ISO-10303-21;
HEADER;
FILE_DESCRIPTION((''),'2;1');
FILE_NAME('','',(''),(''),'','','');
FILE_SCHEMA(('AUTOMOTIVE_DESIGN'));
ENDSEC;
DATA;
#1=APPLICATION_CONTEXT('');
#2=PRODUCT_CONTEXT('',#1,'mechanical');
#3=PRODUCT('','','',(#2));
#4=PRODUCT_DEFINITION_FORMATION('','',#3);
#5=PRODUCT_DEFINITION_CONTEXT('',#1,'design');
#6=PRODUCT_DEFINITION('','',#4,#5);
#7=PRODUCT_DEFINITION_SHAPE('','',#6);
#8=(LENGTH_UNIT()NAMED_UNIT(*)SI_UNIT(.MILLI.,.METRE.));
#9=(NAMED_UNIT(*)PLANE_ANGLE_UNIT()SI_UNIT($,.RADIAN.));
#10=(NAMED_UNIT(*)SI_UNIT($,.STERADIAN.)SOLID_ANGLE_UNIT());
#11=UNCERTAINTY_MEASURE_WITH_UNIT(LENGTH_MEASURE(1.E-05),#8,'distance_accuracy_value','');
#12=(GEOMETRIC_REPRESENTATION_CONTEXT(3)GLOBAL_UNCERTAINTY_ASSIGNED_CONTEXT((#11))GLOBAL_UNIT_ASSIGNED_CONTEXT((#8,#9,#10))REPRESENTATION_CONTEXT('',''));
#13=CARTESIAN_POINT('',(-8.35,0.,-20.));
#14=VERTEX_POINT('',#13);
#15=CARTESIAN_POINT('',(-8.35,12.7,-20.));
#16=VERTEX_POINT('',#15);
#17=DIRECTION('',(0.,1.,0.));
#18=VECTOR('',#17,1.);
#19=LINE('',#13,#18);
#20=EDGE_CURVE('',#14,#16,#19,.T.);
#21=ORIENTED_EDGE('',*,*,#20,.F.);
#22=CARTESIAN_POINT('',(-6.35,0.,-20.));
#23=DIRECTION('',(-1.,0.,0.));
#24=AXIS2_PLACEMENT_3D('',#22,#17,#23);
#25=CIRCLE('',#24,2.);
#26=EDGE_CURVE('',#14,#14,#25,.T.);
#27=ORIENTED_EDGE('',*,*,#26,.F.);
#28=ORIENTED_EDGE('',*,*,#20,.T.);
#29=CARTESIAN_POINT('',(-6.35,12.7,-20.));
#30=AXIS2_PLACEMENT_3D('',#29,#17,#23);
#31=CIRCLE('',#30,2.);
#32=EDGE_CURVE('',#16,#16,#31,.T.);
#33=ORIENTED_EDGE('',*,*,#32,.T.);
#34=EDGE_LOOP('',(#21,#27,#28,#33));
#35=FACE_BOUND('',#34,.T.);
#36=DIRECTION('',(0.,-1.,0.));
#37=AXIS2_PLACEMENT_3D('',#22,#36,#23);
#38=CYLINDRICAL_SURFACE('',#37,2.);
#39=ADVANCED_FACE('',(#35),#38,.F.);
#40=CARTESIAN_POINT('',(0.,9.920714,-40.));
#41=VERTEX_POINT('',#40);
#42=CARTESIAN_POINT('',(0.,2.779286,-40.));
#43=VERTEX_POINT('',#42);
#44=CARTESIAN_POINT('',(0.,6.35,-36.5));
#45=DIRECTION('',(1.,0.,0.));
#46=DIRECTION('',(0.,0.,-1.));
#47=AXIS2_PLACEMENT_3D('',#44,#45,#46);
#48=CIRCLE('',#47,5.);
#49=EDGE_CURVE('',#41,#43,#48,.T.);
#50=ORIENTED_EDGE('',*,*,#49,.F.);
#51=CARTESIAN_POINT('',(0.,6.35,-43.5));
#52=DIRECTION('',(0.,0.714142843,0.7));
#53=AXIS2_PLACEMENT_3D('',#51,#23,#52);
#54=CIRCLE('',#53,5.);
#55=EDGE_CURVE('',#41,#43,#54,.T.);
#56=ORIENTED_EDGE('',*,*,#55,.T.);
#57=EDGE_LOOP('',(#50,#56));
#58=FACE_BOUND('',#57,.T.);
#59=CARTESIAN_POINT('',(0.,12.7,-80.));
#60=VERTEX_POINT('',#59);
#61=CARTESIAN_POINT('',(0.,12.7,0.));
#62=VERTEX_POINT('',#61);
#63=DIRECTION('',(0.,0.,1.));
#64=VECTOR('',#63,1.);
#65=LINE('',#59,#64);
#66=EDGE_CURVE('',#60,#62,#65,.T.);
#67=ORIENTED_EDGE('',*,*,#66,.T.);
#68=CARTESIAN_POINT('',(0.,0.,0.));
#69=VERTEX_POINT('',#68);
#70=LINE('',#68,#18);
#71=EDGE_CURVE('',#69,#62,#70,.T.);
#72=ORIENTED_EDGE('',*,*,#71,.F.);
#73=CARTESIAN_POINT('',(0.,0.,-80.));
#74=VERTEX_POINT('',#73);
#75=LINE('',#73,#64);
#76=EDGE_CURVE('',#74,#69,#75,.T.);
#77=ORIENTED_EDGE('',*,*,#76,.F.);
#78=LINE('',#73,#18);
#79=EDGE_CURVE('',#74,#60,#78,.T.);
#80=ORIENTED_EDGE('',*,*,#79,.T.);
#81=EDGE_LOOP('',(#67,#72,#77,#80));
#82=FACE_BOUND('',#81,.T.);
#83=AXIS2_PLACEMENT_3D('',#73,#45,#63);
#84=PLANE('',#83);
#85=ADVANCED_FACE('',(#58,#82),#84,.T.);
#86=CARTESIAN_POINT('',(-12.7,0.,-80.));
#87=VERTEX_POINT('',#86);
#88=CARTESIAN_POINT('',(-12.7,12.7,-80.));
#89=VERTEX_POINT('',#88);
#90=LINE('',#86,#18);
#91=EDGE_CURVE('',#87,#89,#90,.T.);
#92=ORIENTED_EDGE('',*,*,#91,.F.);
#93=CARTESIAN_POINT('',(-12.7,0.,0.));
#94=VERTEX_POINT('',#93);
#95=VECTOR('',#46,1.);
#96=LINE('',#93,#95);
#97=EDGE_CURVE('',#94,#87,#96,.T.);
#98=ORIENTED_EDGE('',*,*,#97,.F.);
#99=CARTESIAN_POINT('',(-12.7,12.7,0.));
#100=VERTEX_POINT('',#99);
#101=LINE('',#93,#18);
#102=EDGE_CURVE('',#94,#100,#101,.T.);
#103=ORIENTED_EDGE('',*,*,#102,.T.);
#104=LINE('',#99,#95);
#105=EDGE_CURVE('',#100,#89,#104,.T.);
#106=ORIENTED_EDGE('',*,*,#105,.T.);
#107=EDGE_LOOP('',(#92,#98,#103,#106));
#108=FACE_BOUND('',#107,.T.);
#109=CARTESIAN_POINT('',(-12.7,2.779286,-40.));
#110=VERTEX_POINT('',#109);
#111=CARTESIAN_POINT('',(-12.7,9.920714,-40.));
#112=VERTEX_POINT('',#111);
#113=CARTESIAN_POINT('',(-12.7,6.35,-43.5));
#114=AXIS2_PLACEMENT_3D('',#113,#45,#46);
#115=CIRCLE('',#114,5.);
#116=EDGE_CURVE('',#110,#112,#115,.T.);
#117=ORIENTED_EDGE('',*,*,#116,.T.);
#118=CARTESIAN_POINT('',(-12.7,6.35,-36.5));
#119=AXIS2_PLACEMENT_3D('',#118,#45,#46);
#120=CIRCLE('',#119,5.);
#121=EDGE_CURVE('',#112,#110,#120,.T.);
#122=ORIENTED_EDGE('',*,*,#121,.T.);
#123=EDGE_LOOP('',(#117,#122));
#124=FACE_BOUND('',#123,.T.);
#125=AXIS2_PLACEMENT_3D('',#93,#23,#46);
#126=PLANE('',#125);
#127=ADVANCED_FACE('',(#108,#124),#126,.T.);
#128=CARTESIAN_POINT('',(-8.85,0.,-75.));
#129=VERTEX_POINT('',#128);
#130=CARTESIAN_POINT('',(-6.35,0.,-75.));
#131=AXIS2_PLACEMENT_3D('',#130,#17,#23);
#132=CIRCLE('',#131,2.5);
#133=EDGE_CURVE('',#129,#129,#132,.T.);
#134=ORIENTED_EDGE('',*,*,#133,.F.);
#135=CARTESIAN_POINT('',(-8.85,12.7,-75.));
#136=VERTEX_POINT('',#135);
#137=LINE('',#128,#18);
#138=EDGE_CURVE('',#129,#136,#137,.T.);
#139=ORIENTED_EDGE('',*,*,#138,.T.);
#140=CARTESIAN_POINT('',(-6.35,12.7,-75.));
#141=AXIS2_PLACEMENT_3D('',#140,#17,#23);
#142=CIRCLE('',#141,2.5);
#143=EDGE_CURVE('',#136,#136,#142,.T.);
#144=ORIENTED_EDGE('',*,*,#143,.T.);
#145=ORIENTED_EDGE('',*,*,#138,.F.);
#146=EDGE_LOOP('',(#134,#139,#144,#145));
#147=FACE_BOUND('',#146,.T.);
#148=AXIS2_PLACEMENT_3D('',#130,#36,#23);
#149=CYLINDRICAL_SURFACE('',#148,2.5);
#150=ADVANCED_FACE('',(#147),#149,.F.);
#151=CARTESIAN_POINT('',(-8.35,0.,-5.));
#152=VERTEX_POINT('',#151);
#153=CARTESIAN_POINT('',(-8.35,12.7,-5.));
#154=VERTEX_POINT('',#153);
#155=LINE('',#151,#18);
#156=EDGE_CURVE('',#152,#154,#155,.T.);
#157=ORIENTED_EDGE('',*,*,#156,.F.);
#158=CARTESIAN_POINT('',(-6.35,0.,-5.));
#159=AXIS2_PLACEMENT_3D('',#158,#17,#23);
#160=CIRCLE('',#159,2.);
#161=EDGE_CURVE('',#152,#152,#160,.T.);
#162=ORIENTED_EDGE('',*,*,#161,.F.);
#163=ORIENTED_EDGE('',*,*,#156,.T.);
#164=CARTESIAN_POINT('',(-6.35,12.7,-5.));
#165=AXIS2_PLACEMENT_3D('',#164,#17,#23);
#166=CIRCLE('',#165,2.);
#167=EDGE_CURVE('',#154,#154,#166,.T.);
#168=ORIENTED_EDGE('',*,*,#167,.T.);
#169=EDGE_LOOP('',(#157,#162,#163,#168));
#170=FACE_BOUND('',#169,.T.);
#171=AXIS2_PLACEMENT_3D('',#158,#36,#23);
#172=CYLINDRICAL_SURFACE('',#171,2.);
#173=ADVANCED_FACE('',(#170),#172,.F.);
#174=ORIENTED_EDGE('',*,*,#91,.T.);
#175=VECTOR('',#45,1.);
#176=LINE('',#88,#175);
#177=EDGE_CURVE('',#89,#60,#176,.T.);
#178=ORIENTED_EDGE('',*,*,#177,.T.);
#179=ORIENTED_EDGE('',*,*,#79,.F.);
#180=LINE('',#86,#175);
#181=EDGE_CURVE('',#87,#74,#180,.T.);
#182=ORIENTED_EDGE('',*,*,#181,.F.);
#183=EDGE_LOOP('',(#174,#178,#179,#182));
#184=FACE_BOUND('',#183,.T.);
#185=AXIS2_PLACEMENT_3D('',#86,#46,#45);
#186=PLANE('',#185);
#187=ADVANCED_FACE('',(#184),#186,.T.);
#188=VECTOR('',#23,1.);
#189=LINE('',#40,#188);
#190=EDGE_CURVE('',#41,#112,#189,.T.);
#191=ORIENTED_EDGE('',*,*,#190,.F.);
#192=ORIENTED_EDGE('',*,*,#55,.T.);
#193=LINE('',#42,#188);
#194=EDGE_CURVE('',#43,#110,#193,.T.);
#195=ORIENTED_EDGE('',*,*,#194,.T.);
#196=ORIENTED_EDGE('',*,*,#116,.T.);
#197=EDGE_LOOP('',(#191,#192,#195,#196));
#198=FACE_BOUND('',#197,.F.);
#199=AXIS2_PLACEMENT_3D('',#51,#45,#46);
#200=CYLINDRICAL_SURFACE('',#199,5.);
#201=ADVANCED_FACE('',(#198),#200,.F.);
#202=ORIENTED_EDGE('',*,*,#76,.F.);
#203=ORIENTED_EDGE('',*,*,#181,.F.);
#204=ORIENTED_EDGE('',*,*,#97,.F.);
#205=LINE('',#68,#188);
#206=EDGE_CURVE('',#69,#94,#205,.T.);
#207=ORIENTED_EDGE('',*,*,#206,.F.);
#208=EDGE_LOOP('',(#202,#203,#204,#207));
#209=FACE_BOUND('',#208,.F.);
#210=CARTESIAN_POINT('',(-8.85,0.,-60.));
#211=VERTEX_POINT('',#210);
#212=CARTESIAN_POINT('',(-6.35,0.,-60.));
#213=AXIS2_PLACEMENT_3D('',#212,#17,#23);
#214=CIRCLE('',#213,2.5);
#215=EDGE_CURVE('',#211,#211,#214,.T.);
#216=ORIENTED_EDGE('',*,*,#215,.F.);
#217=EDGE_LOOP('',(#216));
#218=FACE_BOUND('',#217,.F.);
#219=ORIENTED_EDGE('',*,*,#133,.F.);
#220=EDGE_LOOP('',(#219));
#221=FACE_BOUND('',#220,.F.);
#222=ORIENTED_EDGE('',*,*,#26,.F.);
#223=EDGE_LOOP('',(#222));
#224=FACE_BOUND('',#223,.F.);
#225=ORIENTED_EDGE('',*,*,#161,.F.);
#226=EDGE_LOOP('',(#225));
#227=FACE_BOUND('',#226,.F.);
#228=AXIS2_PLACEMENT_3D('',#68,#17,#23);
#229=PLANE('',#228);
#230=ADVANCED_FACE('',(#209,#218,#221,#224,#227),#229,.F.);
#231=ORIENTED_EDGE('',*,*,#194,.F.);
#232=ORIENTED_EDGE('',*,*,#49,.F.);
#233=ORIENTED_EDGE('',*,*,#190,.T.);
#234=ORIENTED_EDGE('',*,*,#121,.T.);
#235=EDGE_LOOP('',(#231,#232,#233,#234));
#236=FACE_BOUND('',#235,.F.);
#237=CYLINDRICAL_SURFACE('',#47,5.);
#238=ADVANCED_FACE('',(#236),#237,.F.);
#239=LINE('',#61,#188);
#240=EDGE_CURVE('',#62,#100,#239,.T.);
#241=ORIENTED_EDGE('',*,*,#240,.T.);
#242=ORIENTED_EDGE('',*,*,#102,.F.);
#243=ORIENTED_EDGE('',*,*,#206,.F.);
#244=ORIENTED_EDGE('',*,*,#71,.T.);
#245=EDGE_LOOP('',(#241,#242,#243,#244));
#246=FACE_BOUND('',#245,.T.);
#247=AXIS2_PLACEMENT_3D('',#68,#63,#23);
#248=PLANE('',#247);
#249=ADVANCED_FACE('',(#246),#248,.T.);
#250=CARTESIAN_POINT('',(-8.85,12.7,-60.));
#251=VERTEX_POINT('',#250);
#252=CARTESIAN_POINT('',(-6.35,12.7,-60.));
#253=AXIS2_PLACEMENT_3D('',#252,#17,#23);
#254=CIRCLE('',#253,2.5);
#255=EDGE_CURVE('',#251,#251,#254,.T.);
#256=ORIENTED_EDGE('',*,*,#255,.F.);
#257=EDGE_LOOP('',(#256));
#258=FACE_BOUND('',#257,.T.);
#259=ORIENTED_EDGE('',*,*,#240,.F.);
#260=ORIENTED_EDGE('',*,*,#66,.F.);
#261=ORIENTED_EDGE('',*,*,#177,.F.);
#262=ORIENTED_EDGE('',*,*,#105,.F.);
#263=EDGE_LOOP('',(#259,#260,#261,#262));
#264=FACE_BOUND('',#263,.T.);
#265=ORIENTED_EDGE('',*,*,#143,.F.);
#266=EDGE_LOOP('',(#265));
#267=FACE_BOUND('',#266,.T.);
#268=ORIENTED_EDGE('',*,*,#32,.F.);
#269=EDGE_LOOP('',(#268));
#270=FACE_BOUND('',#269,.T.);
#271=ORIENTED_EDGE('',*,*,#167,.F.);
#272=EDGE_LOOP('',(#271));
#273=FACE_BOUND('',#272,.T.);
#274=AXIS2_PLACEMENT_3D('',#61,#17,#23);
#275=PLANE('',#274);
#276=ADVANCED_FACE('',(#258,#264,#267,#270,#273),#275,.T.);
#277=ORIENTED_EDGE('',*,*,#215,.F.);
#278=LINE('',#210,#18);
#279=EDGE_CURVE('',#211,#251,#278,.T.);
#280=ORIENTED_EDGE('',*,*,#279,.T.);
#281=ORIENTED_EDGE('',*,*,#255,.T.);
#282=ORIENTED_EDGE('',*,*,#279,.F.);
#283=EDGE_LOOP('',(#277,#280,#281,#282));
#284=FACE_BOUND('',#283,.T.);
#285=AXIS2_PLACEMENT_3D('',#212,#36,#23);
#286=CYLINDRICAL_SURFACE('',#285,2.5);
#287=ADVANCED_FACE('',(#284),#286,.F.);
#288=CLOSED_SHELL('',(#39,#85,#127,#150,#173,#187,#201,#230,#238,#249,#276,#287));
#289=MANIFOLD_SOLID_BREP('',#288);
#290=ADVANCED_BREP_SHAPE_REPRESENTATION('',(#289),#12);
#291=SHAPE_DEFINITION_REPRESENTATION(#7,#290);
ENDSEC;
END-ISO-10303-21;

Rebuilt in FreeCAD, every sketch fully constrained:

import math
import FreeCAD as App
import Part
import Sketcher
from FreeCAD import Vector

doc = App.newDocument("Part")
params = doc.addObject("Spreadsheet::Sheet", "Params")
for row, (alias, value) in enumerate([
    ("sketch1_diameter", "5 mm"),
    ("sketch1_diameter2", "4 mm"),
    ("sketch1_height", "80 mm"),
    ("sketch1_width", "12.7 mm"),
    ("pad1_length", "12.7 mm"),
    ("sketch2_radius", "5 mm"),
], start=1):
    params.set(f"A{row}", alias)
    params.set(f"B{row}", "=" + value)
    params.setAlias(f"B{row}", alias)

body = doc.addObject("PartDesign::Body", "Body")

# Sketch on XZ plane
sketch1 = doc.addObject("Sketcher::SketchObject", "Sketch")
body.addObject(sketch1)
sketch1.AttachmentSupport = (doc.XZ_Plane, [""])
sketch1.MapMode = "FlatFace"
sketch1.addGeometry(Part.LineSegment(Vector(-12.7, 0, 0), Vector(0, 0, 0)), False)
sketch1.addGeometry(Part.LineSegment(Vector(0, 0, 0), Vector(0, -80, 0)), False)
sketch1.addGeometry(Part.LineSegment(Vector(0, -80, 0), Vector(-12.7, -80, 0)), False)
sketch1.addGeometry(Part.LineSegment(Vector(-12.7, -80, 0), Vector(-12.7, 0, 0)), False)
sketch1.addGeometry(Part.Circle(Vector(-6.3, -75, 0), Vector(0, 0, 1), 2.5), False)
sketch1.addGeometry(Part.Circle(Vector(-6.3, -60, 0), Vector(0, 0, 1), 2.5), False)
sketch1.addGeometry(Part.Circle(Vector(-6.3, -20, 0), Vector(0, 0, 1), 2), False)
sketch1.addGeometry(Part.Circle(Vector(-6.3, -5, 0), Vector(0, 0, 1), 2), False)
sketch1.addConstraint(Sketcher.Constraint("Coincident", 0, 2, 1, 1))
sketch1.addConstraint(Sketcher.Constraint("Coincident", 1, 2, 2, 1))
sketch1.addConstraint(Sketcher.Constraint("Coincident", 2, 2, 3, 1))
sketch1.addConstraint(Sketcher.Constraint("Coincident", 3, 2, 0, 1))
sketch1.addConstraint(Sketcher.Constraint("Horizontal", 0))
sketch1.addConstraint(Sketcher.Constraint("Vertical", 1))
sketch1.addConstraint(Sketcher.Constraint("Horizontal", 2))
sketch1.addConstraint(Sketcher.Constraint("Vertical", 3))
sketch1.addConstraint(Sketcher.Constraint("Coincident", 0, 2, -1, 1))
sketch1.addConstraint(Sketcher.Constraint("Equal", 4, 5))
sketch1.addConstraint(Sketcher.Constraint("Equal", 6, 7))
sketch1.addConstraint(Sketcher.Constraint("Vertical", 4, 3, 5, 3))
sketch1.addConstraint(Sketcher.Constraint("Vertical", 5, 3, 6, 3))
sketch1.addConstraint(Sketcher.Constraint("Vertical", 6, 3, 7, 3))
sketch1.addConstraint(Sketcher.Constraint("Diameter", 4, 5.0))
sketch1.addConstraint(Sketcher.Constraint("Diameter", 6, 4.0))
sketch1.addConstraint(Sketcher.Constraint("DistanceY", 1, 2, 1, 1, 80.0))
sketch1.addConstraint(Sketcher.Constraint("DistanceX", 0, 1, 0, 2, 12.7))
sketch1.addConstraint(Sketcher.Constraint("DistanceY", 7, 3, -1, 1, 5.0))
sketch1.addConstraint(Sketcher.Constraint("DistanceY", 4, 3, 5, 3, 15.0))
sketch1.addConstraint(Sketcher.Constraint("DistanceY", 5, 3, 6, 3, 40.0))
sketch1.addConstraint(Sketcher.Constraint("DistanceY", 6, 3, 7, 3, 15.0))
sketch1.addConstraint(Sketcher.Constraint("DistanceX", 4, 3, -1, 1, 6.35))
sketch1.setExpression("Constraints[14]", "Params.sketch1_diameter")
sketch1.setExpression("Constraints[15]", "Params.sketch1_diameter2")
sketch1.setExpression("Constraints[16]", "Params.sketch1_height")
sketch1.setExpression("Constraints[17]", "Params.sketch1_width")
pad1 = doc.addObject("PartDesign::Pad", "Pad")
body.addObject(pad1)
pad1.Profile = sketch1
pad1.setExpression("Length", "Params.pad1_length")
pad1.Reversed = True

# Sketch on YZ plane
sketch2 = doc.addObject("Sketcher::SketchObject", "Sketch001")
body.addObject(sketch2)
sketch2.AttachmentSupport = (doc.YZ_Plane, [""])
sketch2.MapMode = "FlatFace"
sketch2.addGeometry(Part.ArcOfCircle(Part.Circle(Vector(6, -44, 0), Vector(0, 0, 1), 5), math.radians(136), math.radians(404)), False)
sketch2.addGeometry(Part.ArcOfCircle(Part.Circle(Vector(6, -36, 0), Vector(0, 0, 1), 5), math.radians(-44), math.radians(224)), False)
sketch2.addConstraint(Sketcher.Constraint("Coincident", 0, 1, 1, 2))
sketch2.addConstraint(Sketcher.Constraint("Coincident", 1, 1, 0, 2))
sketch2.addConstraint(Sketcher.Constraint("Equal", 0, 1))
sketch2.addConstraint(Sketcher.Constraint("Horizontal", 0, 1, 1, 1))
sketch2.addConstraint(Sketcher.Constraint("Radius", 0, 5.0))
sketch2.addConstraint(Sketcher.Constraint("DistanceY", 0, 3, 1, 3, 7.0))
sketch2.addConstraint(Sketcher.Constraint("DistanceY", 0, 1, -1, 1, 40.0))
sketch2.addConstraint(Sketcher.Constraint("DistanceX", -1, 1, 0, 3, 6.35))
sketch2.setExpression("Constraints[4]", "Params.sketch2_radius")
pocket1 = doc.addObject("PartDesign::Pocket", "Pocket")
body.addObject(pocket1)
pocket1.Profile = sketch2
pocket1.Type = "ThroughAll"

doc.recompute()
